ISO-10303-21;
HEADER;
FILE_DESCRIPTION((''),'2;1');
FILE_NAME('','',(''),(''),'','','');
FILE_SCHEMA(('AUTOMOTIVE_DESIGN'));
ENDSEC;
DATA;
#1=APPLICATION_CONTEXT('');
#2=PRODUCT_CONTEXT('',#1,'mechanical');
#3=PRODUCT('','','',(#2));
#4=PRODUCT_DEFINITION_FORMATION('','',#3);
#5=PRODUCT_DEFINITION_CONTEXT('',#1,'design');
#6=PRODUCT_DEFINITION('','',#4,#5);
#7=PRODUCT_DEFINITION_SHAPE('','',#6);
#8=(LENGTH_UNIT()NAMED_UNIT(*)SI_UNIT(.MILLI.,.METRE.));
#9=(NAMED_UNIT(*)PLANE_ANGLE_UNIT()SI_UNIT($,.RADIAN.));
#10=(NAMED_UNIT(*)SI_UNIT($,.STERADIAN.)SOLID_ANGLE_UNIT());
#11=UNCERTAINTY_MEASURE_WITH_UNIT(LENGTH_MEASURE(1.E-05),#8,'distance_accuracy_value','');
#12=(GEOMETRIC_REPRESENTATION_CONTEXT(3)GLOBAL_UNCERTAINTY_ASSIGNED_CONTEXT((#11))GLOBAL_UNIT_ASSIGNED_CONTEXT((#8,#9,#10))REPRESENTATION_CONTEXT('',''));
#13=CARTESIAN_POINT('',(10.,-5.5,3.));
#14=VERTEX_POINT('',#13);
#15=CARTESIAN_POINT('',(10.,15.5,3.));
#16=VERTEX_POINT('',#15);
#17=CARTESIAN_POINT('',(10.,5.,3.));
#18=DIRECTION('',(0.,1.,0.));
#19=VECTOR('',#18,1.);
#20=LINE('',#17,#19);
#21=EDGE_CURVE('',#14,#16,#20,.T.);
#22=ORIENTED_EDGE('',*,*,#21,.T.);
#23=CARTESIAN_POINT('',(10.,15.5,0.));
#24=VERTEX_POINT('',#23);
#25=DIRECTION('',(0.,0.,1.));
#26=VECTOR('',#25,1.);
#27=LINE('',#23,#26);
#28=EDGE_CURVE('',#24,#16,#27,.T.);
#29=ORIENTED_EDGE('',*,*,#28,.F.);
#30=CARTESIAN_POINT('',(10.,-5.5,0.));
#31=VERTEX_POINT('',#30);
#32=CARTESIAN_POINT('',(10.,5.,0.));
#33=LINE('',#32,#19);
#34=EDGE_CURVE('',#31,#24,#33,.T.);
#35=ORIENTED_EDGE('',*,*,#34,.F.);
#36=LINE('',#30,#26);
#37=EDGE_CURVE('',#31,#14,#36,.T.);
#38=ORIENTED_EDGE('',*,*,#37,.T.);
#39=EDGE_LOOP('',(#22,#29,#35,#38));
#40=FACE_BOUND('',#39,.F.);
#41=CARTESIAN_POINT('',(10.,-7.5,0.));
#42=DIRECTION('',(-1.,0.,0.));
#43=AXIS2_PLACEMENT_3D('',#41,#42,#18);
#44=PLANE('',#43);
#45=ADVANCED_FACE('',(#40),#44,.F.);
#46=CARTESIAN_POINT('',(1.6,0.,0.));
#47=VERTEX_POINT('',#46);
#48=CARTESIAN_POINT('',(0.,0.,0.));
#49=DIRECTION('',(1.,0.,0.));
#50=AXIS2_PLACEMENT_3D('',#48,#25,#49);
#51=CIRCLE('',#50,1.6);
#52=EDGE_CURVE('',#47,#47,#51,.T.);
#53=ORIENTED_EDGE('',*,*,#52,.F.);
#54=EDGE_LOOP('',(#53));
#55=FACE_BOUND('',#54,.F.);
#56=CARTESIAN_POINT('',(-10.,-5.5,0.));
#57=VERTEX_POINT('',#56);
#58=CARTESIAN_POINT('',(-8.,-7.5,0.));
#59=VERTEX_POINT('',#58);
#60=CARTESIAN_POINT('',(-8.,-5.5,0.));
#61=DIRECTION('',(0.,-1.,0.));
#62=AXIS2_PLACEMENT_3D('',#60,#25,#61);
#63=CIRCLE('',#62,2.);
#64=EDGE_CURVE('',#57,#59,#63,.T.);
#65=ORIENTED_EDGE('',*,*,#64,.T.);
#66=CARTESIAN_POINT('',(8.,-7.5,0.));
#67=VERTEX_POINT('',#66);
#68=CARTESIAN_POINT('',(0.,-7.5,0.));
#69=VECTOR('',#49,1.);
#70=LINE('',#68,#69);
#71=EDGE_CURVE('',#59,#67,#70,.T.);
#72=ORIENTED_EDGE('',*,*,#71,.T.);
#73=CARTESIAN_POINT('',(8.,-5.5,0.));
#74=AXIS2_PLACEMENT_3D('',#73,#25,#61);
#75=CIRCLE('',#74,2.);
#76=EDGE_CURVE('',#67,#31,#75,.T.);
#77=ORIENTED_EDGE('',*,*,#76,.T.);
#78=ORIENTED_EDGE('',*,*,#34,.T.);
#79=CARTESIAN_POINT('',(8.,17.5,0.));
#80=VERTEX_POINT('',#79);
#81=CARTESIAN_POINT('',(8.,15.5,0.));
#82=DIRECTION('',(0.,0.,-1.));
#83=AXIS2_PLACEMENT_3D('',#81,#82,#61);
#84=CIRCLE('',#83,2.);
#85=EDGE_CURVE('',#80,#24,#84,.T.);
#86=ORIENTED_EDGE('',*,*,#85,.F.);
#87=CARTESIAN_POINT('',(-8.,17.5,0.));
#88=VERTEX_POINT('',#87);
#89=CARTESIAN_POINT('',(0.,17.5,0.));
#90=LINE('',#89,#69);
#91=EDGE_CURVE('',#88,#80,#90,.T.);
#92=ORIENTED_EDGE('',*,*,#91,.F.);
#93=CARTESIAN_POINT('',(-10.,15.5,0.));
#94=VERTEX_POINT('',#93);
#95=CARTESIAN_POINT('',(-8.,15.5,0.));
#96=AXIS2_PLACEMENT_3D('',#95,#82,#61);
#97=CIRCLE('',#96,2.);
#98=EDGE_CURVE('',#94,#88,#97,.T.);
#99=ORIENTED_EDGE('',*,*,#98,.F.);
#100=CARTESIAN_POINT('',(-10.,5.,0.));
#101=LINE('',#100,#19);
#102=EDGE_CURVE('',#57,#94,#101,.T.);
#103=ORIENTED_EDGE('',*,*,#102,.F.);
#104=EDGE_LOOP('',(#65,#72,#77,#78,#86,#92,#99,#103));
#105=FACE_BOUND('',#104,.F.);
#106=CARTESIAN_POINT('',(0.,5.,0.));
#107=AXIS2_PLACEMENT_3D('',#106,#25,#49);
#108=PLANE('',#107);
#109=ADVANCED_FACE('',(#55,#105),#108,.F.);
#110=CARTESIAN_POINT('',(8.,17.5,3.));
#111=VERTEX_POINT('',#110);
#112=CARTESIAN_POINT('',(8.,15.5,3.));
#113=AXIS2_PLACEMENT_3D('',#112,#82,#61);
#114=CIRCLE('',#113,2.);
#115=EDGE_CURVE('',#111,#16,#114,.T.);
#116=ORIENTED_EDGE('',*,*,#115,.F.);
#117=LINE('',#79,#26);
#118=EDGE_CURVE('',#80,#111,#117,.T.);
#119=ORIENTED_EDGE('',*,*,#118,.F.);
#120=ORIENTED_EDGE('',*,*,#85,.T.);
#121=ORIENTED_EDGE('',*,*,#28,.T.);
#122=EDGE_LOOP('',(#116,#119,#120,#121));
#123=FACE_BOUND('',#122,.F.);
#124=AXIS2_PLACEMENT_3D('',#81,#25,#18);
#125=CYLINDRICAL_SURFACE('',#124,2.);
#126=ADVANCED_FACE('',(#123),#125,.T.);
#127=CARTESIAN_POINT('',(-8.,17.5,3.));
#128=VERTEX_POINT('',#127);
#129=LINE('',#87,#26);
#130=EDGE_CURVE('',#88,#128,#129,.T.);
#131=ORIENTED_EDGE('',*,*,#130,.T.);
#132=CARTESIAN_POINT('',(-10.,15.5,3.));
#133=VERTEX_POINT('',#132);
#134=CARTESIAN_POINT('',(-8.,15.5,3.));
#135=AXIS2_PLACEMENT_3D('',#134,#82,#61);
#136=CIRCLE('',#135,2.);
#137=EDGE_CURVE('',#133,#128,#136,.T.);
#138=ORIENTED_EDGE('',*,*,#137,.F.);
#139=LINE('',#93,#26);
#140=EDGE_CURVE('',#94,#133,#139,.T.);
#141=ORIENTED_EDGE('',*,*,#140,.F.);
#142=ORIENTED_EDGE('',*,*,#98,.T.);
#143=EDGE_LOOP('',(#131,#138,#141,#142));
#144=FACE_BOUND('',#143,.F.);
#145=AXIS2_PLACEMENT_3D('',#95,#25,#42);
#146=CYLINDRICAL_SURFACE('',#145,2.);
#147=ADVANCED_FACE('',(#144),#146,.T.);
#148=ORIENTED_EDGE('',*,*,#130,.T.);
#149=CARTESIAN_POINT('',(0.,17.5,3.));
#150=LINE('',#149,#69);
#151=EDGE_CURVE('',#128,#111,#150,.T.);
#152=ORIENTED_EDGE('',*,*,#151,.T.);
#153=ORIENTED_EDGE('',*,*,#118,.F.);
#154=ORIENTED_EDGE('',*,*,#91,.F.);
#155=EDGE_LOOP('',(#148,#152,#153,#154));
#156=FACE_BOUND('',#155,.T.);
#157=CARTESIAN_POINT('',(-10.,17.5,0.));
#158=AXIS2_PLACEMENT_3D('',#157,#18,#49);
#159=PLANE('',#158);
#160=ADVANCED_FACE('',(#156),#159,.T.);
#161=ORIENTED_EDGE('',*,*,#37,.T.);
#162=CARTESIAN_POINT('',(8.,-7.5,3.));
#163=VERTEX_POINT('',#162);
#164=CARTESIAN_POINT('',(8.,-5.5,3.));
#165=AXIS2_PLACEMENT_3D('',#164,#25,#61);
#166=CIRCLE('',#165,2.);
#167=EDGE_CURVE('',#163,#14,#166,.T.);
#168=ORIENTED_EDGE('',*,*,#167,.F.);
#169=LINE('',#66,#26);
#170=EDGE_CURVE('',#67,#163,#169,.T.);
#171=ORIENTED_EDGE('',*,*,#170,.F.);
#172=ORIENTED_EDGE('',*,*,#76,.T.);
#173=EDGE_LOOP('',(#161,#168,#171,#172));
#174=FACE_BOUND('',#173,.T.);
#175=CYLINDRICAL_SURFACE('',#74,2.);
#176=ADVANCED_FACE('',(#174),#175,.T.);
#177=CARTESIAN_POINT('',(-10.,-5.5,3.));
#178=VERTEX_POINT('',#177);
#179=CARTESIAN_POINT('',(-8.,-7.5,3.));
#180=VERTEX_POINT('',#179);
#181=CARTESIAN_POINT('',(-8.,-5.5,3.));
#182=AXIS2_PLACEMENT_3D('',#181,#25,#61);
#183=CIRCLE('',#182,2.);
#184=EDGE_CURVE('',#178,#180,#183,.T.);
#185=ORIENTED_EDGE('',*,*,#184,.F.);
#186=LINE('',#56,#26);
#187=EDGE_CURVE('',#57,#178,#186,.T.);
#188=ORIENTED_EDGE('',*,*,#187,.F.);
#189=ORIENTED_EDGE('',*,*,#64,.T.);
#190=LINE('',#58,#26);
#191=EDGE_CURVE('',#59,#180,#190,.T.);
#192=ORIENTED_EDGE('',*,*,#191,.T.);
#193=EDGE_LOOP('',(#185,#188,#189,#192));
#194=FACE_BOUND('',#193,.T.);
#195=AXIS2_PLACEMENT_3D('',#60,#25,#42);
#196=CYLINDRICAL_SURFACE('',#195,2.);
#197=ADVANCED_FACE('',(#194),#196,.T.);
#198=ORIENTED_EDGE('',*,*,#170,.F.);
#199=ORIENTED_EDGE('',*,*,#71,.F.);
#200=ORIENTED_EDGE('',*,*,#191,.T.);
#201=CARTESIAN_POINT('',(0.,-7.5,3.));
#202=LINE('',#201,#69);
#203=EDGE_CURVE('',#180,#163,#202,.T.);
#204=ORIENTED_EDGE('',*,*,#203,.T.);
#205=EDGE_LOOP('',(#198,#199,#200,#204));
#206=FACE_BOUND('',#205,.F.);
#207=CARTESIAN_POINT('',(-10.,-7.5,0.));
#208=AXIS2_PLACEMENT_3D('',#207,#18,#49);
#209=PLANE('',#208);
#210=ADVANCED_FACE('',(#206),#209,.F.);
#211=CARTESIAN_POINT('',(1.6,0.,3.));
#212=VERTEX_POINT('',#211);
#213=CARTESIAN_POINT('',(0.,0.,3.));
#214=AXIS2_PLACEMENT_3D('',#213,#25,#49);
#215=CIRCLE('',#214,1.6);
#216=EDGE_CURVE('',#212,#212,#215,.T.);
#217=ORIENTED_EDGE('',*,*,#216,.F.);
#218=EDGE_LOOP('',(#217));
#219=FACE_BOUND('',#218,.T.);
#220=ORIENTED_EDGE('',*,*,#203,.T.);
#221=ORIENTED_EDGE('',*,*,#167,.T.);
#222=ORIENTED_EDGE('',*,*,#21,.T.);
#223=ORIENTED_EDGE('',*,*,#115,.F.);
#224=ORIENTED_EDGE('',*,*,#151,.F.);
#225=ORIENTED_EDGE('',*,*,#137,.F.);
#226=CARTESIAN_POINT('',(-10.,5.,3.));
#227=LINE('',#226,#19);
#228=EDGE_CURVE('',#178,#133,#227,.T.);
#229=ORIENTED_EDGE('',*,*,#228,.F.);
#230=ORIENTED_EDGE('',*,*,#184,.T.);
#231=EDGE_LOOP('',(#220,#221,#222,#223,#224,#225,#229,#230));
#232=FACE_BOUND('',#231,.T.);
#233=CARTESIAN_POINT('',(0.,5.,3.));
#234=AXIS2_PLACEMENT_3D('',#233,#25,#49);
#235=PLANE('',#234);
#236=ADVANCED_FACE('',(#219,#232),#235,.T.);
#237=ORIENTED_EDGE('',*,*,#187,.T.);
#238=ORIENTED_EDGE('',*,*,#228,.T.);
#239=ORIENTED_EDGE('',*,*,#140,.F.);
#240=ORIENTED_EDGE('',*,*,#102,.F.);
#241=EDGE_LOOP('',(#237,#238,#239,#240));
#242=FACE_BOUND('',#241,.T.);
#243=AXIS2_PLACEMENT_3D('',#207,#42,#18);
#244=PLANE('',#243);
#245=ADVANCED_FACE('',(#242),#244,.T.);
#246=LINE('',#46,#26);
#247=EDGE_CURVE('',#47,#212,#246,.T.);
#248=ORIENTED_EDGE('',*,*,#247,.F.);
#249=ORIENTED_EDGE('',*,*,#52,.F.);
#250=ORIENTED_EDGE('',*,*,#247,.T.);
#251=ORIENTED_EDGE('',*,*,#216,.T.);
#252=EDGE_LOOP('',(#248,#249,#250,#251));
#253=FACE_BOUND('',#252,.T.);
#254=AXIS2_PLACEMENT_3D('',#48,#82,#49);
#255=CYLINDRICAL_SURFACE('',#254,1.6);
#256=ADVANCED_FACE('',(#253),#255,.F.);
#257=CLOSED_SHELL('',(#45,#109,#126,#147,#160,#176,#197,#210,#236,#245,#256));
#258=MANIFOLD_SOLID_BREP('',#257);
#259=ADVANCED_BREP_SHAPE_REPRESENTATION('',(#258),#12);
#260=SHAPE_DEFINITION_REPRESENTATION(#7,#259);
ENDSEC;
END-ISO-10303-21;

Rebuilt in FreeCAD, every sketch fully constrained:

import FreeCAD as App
import Part
import Sketcher


def edges_at(feature, points):
    """Names of the edges that pass closest to the given points."""
    edges = feature.Shape.Edges
    near = lambda p: min(range(len(edges)), key=lambda i: edges[i].distToShape(Part.Vertex(*p))[0])
    return sorted({f"Edge{near(p) + 1}" for p in points})

doc = App.newDocument("Part")
params = doc.addObject("Spreadsheet::Sheet", "Params")
for row, (alias, value) in enumerate([
    ("sketch1_diameter", "3.2 mm"),
    ("sketch1_width", "20 mm"),
    ("sketch1_height", "25 mm"),
    ("pad1_length", "3 mm"),
    ("fillet_radius", "2 mm"),
], start=1):
    params.set(f"A{row}", alias)
    params.set(f"B{row}", "=" + value)
    params.setAlias(f"B{row}", alias)

body = doc.addObject("PartDesign::Body", "Body")

# Sketch on XY plane
sketch1 = body.newObject("Sketcher::SketchObject", "Sketch")
sketch1.AttachmentSupport = (doc.getObject("XY_Plane"), [""])
sketch1.MapMode = "FlatFace"
sketch1.addGeometry(Part.LineSegment(App.Vector(-10, 17.5, 0), App.Vector(-10, -7.5, 0)), False)
sketch1.addGeometry(Part.LineSegment(App.Vector(-10, -7.5, 0), App.Vector(10, -7.5, 0)), False)
sketch1.addGeometry(Part.LineSegment(App.Vector(10, -7.5, 0), App.Vector(10, 17.5, 0)), False)
sketch1.addGeometry(Part.LineSegment(App.Vector(10, 17.5, 0), App.Vector(-10, 17.5, 0)), False)
sketch1.addGeometry(Part.Circle(App.Vector(0, 0, 0), App.Vector(0, 0, 1), 1.6), False)
sketch1.addConstraint(Sketcher.Constraint("Coincident", 0, 2, 1, 1))
sketch1.addConstraint(Sketcher.Constraint("Coincident", 1, 2, 2, 1))
sketch1.addConstraint(Sketcher.Constraint("Coincident", 2, 2, 3, 1))
sketch1.addConstraint(Sketcher.Constraint("Coincident", 3, 2, 0, 1))
sketch1.addConstraint(Sketcher.Constraint("Vertical", 0))
sketch1.addConstraint(Sketcher.Constraint("Horizontal", 1))
sketch1.addConstraint(Sketcher.Constraint("Vertical", 2))
sketch1.addConstraint(Sketcher.Constraint("Horizontal", 3))
sketch1.addConstraint(Sketcher.Constraint("Coincident", 4, 3, -1, 1))
sketch1.addConstraint(Sketcher.Constraint("Diameter", 4, 3.2))
sketch1.addConstraint(Sketcher.Constraint("DistanceX", 1, 1, 1, 2, 20.0))
sketch1.addConstraint(Sketcher.Constraint("DistanceY", 0, 2, 0, 1, 25.0))
sketch1.addConstraint(Sketcher.Constraint("DistanceX", 0, 2, -1, 1, 10.0))
sketch1.addConstraint(Sketcher.Constraint("DistanceY", 0, 2, -1, 1, 7.5))
sketch1.setExpression("Constraints[9]", "Params.sketch1_diameter")
sketch1.setExpression("Constraints[10]", "Params.sketch1_width")
sketch1.setExpression("Constraints[11]", "Params.sketch1_height")
pad1 = body.newObject("PartDesign::Pad", "Pad")
pad1.Profile = sketch1
pad1.setExpression("Length", "Params.pad1_length")
doc.recompute()

fillet = body.newObject("PartDesign::Fillet", "Fillet")
fillet.Base = (pad1, edges_at(pad1, [
    (-10, -7.5, 1.5),
    (10, -7.5, 1.5),
    (-10, 17.5, 1.5),
    (10, 17.5, 1.5),
]))
fillet.setExpression("Radius", "Params.fillet_radius")

doc.recompute()
